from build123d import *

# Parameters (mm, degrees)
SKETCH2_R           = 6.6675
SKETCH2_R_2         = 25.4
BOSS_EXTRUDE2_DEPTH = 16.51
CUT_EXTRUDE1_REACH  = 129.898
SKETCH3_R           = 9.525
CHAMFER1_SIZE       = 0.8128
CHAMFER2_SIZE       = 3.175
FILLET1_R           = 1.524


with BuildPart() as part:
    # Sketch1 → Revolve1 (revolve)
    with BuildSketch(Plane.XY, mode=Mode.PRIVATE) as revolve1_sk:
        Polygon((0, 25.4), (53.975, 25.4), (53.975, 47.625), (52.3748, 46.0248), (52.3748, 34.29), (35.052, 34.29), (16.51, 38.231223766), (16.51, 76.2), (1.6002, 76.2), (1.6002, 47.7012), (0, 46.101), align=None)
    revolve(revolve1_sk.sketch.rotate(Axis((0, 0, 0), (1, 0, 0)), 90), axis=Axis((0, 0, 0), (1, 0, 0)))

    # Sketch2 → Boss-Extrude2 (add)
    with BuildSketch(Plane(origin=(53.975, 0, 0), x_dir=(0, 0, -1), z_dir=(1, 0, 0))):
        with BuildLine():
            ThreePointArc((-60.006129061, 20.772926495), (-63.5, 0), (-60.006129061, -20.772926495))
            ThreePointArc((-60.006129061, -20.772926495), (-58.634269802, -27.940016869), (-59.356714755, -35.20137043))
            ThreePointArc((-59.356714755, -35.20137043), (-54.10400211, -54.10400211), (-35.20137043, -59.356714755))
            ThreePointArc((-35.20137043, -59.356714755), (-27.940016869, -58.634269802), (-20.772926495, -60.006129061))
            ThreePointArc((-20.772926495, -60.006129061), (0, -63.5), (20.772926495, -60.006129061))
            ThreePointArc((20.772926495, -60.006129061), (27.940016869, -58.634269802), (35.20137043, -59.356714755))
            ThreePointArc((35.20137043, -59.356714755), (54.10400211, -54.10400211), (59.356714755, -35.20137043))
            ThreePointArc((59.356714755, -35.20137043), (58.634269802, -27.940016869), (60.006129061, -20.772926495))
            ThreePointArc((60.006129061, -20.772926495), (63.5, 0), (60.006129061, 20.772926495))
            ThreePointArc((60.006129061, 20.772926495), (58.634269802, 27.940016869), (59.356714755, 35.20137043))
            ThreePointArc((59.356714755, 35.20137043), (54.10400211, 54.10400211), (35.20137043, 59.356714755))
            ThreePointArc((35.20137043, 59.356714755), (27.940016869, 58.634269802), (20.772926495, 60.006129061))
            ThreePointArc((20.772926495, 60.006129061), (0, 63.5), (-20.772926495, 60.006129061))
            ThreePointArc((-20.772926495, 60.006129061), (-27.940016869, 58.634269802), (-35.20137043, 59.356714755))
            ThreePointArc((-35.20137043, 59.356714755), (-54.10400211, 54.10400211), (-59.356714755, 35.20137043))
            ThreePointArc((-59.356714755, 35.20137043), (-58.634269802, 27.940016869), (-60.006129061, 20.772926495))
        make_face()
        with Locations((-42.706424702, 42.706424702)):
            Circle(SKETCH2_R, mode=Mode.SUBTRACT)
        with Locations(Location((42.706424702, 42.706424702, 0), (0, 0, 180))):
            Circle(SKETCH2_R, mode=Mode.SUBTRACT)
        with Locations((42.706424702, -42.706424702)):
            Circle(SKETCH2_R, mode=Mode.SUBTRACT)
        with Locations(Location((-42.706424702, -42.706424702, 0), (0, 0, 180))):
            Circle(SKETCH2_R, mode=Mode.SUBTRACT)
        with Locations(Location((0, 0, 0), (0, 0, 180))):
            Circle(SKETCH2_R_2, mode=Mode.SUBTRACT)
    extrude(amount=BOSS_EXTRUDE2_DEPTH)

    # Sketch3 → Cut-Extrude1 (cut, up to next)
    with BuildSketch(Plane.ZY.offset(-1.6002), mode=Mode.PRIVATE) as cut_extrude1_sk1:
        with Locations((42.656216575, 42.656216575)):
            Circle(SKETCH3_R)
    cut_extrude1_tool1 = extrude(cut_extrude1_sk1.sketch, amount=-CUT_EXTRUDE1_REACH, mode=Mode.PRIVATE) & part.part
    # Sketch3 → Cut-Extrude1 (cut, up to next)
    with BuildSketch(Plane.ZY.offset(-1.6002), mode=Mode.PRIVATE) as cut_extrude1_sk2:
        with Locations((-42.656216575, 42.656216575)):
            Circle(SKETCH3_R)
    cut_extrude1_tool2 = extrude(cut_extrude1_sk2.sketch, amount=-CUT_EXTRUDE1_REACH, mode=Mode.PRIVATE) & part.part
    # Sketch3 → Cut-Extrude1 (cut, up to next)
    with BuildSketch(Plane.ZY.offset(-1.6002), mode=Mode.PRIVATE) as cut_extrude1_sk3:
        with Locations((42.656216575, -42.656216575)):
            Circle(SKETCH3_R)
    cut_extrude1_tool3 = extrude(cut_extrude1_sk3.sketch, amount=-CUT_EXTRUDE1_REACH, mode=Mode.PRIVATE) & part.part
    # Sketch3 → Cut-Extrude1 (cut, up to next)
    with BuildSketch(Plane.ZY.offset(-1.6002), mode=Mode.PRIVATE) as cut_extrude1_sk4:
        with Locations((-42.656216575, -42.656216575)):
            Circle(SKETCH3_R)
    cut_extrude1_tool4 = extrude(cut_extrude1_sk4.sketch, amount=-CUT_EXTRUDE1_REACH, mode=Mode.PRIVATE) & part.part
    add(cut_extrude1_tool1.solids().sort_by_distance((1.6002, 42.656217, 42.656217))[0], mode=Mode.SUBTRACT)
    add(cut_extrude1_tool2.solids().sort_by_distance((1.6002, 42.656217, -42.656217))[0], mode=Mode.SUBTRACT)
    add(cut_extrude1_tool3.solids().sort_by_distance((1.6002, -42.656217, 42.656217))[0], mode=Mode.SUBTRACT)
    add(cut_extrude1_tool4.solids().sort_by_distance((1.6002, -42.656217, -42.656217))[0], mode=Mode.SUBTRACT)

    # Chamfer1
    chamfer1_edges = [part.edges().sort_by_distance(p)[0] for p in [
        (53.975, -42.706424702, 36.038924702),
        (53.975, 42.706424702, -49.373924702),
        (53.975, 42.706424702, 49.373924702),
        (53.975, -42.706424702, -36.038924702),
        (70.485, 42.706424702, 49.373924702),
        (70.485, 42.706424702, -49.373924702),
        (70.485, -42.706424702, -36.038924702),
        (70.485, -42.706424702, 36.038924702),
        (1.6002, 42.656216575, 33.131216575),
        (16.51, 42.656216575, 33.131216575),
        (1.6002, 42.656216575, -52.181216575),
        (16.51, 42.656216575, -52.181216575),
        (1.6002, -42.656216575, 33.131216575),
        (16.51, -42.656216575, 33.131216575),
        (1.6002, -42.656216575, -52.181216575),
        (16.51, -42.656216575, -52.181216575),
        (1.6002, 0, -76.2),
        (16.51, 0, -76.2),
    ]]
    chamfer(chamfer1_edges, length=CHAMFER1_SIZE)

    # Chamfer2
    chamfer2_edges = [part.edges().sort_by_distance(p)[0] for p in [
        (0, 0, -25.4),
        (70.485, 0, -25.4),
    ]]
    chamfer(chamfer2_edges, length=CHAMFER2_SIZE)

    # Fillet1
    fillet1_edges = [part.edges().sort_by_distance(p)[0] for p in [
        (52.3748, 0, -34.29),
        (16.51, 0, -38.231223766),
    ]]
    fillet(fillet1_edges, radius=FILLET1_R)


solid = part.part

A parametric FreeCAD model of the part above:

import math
import FreeCAD as App
import Part
import Sketcher
Q = App.Units.Quantity


def edges_at(feature, points):
    """Names of the edges that pass closest to the given points."""
    edges = feature.Shape.Edges
    near = lambda p: min(range(len(edges)), key=lambda i: edges[i].distToShape(Part.Vertex(*p))[0])
    return sorted({f"Edge{near(p) + 1}" for p in points})


def add_polygon(sketch, points):
    """Adds a closed chain of lines whose ends are joined by coincident constraints."""
    first, n = sketch.GeometryCount, len(points)
    for a, b in zip(points, points[1:] + points[:1]):
        sketch.addGeometry(Part.LineSegment(App.Vector(*a, 0), App.Vector(*b, 0)), False)
    for i in range(n):
        sketch.addConstraint(Sketcher.Constraint("Coincident", first + i, 2, first + (i + 1) % n, 1))

doc = App.newDocument("Part")
body = doc.addObject("PartDesign::Body", "Body")

# Sketch on XY plane
sketch1 = body.newObject("Sketcher::SketchObject", "Sketch")
sketch1.AttachmentSupport = (doc.getObject("XY_Plane"), [""])
sketch1.MapMode = "FlatFace"
add_polygon(sketch1, [(0, 25.4), (54, 25.4), (54, 47.6), (52.4, 46), (52.4, 34.3), (35.1, 34.3), (16.5, 38.2), (16.5, 76.2), (1.6, 76.2), (1.6, 47.7), (0, 46.1)])  # lines 0-10
sketch1.addConstraint([
    Sketcher.Constraint("Horizontal", 0),
    Sketcher.Constraint("Vertical", 1),
    Sketcher.Constraint("Vertical", 3),
    Sketcher.Constraint("Horizontal", 4),
    Sketcher.Constraint("Vertical", 6),
    Sketcher.Constraint("Horizontal", 7),
    Sketcher.Constraint("Vertical", 8),
    Sketcher.Constraint("Vertical", 10),
    Sketcher.Constraint("PointOnObject", 9, 2, -2),
    Sketcher.Constraint("Parallel", 2, 9),
    Sketcher.Constraint("Equal", 2, 9),
    Sketcher.Constraint("DistanceY", -1, 1, 0, 2, Q("1 in")),
    Sketcher.Constraint("DistanceY", -1, 1, 6, 2, Q("3 in")),
    Sketcher.Constraint("Angle", 2, Q("-135 deg")),
    Sketcher.Constraint("Angle", 5, Q("168 deg")),
    Sketcher.Constraint("DistanceX", 0, 1, 0, 2, Q("2.125 in")),
    Sketcher.Constraint("DistanceX", 4, 2, 4, 1, Q("0.682 in")),
    Sketcher.Constraint("DistanceX", 7, 2, 7, 1, Q("0.587 in")),
    Sketcher.Constraint("DistanceY", 1, 1, 1, 2, Q("0.875 in")),
    Sketcher.Constraint("DistanceY", 3, 2, 3, 1, Q("0.462 in")),
    Sketcher.Constraint("DistanceY", 8, 2, 8, 1, Q("1.122 in")),
    Sketcher.Constraint("DistanceY", 10, 2, 10, 1, Q("0.815 in")),
])
revolution = body.newObject("PartDesign::Revolution", "Revolution")
revolution.Profile = sketch1
revolution.ReferenceAxis = (sketch1, ["H_Axis"])
revolution.Angle = 360

# Sketch on YZ plane
sketch2 = body.newObject("Sketcher::SketchObject", "Sketch001")
sketch2.AttachmentSupport = (doc.getObject("YZ_Plane"), [""])
sketch2.MapMode = "FlatFace"
sketch2.AttachmentOffset = App.Placement(App.Vector(0, 0, 2.125 * 25.4), App.Rotation())
sketch2.addGeometry([
    Part.ArcOfCircle(Part.Circle(App.Vector(0, 0, 0), App.Vector(0, 0, 1), 64), math.radians(71), math.radians(109)),  # 0
    Part.ArcOfCircle(Part.Circle(App.Vector(-29, 84, 0), App.Vector(0, 0, 1), 25), math.radians(-104), math.radians(-71)),  # 1
    Part.ArcOfCircle(Part.Circle(App.Vector(-40, 40, 0), App.Vector(0, 0, 1), 20), math.radians(76), math.radians(194)),  # 2
    Part.ArcOfCircle(Part.Circle(App.Vector(-84, 29, 0), App.Vector(0, 0, 1), 25), math.radians(-19), math.radians(14)),  # 3
    Part.ArcOfCircle(Part.Circle(App.Vector(0, 0, 0), App.Vector(0, 0, 1), 64), math.radians(161), math.radians(199)),  # 4
    Part.ArcOfCircle(Part.Circle(App.Vector(-84, -29, 0), App.Vector(0, 0, 1), 25), math.radians(-14), math.radians(19)),  # 5
    Part.ArcOfCircle(Part.Circle(App.Vector(-40, -40, 0), App.Vector(0, 0, 1), 20), math.radians(166), math.radians(284)),  # 6
    Part.ArcOfCircle(Part.Circle(App.Vector(-29, -84, 0), App.Vector(0, 0, 1), 25), math.radians(71), math.radians(104)),  # 7
    Part.ArcOfCircle(Part.Circle(App.Vector(0, 0, 0), App.Vector(0, 0, 1), 64), math.radians(-109), math.radians(-71)),  # 8
    Part.ArcOfCircle(Part.Circle(App.Vector(29, -84, 0), App.Vector(0, 0, 1), 25), math.radians(76), math.radians(109)),  # 9
    Part.ArcOfCircle(Part.Circle(App.Vector(40, -40, 0), App.Vector(0, 0, 1), 20), math.radians(-104), math.radians(14)),  # 10
    Part.ArcOfCircle(Part.Circle(App.Vector(84, -29, 0), App.Vector(0, 0, 1), 25), math.radians(161), math.radians(194)),  # 11
    Part.ArcOfCircle(Part.Circle(App.Vector(0, 0, 0), App.Vector(0, 0, 1), 64), math.radians(-19), math.radians(19)),  # 12
    Part.ArcOfCircle(Part.Circle(App.Vector(84, 29, 0), App.Vector(0, 0, 1), 25), math.radians(166), math.radians(199)),  # 13
    Part.ArcOfCircle(Part.Circle(App.Vector(40, 40, 0), App.Vector(0, 0, 1), 20), math.radians(-14), math.radians(104)),  # 14
    Part.ArcOfCircle(Part.Circle(App.Vector(29, 84, 0), App.Vector(0, 0, 1), 25), math.radians(-109), math.radians(-76)),  # 15
    Part.Circle(App.Vector(-43, 43, 0), App.Vector(0, 0, 1), 7),  # 16
    Part.Circle(App.Vector(0, 0, 0), App.Vector(0, 0, 1), 25),  # 17
    Part.Circle(App.Vector(-43, -43, 0), App.Vector(0, 0, 1), 7),  # 18
    Part.Circle(App.Vector(43, 43, 0), App.Vector(0, 0, 1), 7),  # 19
    Part.Circle(App.Vector(43, -43, 0), App.Vector(0, 0, 1), 7),  # 20
], False)
sketch2.addConstraint([
    Sketcher.Constraint("Tangent", 0, 2, 1, 2),
    Sketcher.Constraint("Tangent", 1, 1, 2, 1),
    Sketcher.Constraint("Tangent", 2, 2, 3, 2),
    Sketcher.Constraint("Tangent", 3, 1, 4, 1),
    Sketcher.Constraint("Tangent", 4, 2, 5, 2),
    Sketcher.Constraint("Tangent", 5, 1, 6, 1),
    Sketcher.Constraint("Tangent", 6, 2, 7, 2),
    Sketcher.Constraint("Tangent", 7, 1, 8, 1),
    Sketcher.Constraint("Tangent", 8, 2, 9, 2),
    Sketcher.Constraint("Tangent", 9, 1, 10, 1),
    Sketcher.Constraint("Tangent", 10, 2, 11, 2),
    Sketcher.Constraint("Tangent", 11, 1, 12, 1),
    Sketcher.Constraint("Tangent", 12, 2, 13, 2),
    Sketcher.Constraint("Tangent", 13, 1, 14, 1),
    Sketcher.Constraint("Tangent", 14, 2, 15, 2),
    Sketcher.Constraint("Tangent", 15, 1, 0, 1),
    Sketcher.Constraint("Coincident", 0, 3, -1, 1),
    Sketcher.Constraint("Coincident", 4, 3, -1, 1),
    Sketcher.Constraint("Coincident", 8, 3, -1, 1),
    Sketcher.Constraint("Coincident", 12, 3, -1, 1),
    Sketcher.Constraint("Coincident", 17, 3, -1, 1),
    Sketcher.Constraint("Equal", 1, 3),
    Sketcher.Constraint("Equal", 0, 4),
    Sketcher.Constraint("Equal", 3, 5),
    Sketcher.Constraint("Equal", 2, 6),
    Sketcher.Constraint("Equal", 5, 7),
    Sketcher.Constraint("Equal", 4, 8),
    Sketcher.Constraint("Equal", 7, 9),
    Sketcher.Constraint("Equal", 6, 10),
    Sketcher.Constraint("Equal", 9, 11),
    Sketcher.Constraint("Equal", 8, 12),
    Sketcher.Constraint("Equal", 11, 13),
    Sketcher.Constraint("Equal", 10, 14),
    Sketcher.Constraint("Equal", 13, 15),
    Sketcher.Constraint("Equal", 15, 17),
    Sketcher.Constraint("Equal", 16, 18),
    Sketcher.Constraint("Equal", 18, 19),
    Sketcher.Constraint("Equal", 19, 20),
    Sketcher.Constraint("Symmetric", 2, 3, 10, 3, -1, 1),
    Sketcher.Constraint("Symmetric", 6, 3, 14, 3, -1, 1),
    Sketcher.Constraint("Symmetric", 18, 3, 19, 3, -1, 1),
    Sketcher.Constraint("Symmetric", 16, 3, 20, 3, -1, 1),
    Sketcher.Constraint("Symmetric", 6, 3, 10, 3, -2),
    Sketcher.Constraint("Symmetric", 16, 3, 19, 3, -2),
    Sketcher.Constraint("Diameter", 17, Q("2 in")),
    Sketcher.Constraint("Radius", 0, Q("2.5 in")),
    Sketcher.Constraint("Diameter", 16, Q("0.525 in")),
    Sketcher.Constraint("Radius", 2, Q("0.785 in")),
    Sketcher.Constraint("DistanceY", 6, 3, 2, 3, Q("3.15 in")),
    Sketcher.Constraint("DistanceX", 6, 3, 10, 3, Q("3.15 in")),
    Sketcher.Constraint("DistanceX", 16, 3, 0, 2, 21.933498),
    Sketcher.Constraint("DistanceY", 3, 1, 16, 3, 21.933498),
])
pad1 = body.newObject("PartDesign::Pad", "Pad")
pad1.Profile = sketch2
pad1.Length = Q("0.65 in")

# Sketch on YZ plane
sketch3 = body.newObject("Sketcher::SketchObject", "Sketch002")
sketch3.AttachmentSupport = (doc.getObject("YZ_Plane"), [""])
sketch3.MapMode = "FlatFace"
sketch3.AttachmentOffset = App.Placement(App.Vector(0, 0, 0.063 * 25.4), App.Rotation())
sketch3.addGeometry(Part.Circle(App.Vector(43, 43, 0), App.Vector(0, 0, 1), 10), False)
sketch3.addConstraint([
    Sketcher.Constraint("Diameter", 0, Q("0.75 in")),
    Sketcher.Constraint("DistanceX", -1, 1, 0, 3, 42.656217),
    Sketcher.Constraint("DistanceY", -1, 1, 0, 3, 42.656217),
])
pocket1 = body.newObject("PartDesign::Pocket", "Pocket")
pocket1.Profile = sketch3
pocket1.Type = "UpToFirst"
pocket1.Reversed = True

# Sketch on YZ plane
sketch4 = body.newObject("Sketcher::SketchObject", "Sketch003")
sketch4.AttachmentSupport = (doc.getObject("YZ_Plane"), [""])
sketch4.MapMode = "FlatFace"
sketch4.AttachmentOffset = App.Placement(App.Vector(0, 0, 0.063 * 25.4), App.Rotation())
sketch4.addGeometry(Part.Circle(App.Vector(43, -43, 0), App.Vector(0, 0, 1), 10), False)
sketch4.addConstraint([
    Sketcher.Constraint("Diameter", 0, Q("0.75 in")),
    Sketcher.Constraint("DistanceX", -1, 1, 0, 3, 42.656217),
    Sketcher.Constraint("DistanceY", 0, 3, -1, 1, 42.656217),
])
pocket2 = body.newObject("PartDesign::Pocket", "Pocket001")
pocket2.Profile = sketch4
pocket2.Type = "UpToFirst"
pocket2.Reversed = True

# Sketch on YZ plane
sketch5 = body.newObject("Sketcher::SketchObject", "Sketch004")
sketch5.AttachmentSupport = (doc.getObject("YZ_Plane"), [""])
sketch5.MapMode = "FlatFace"
sketch5.AttachmentOffset = App.Placement(App.Vector(0, 0, 0.063 * 25.4), App.Rotation())
sketch5.addGeometry(Part.Circle(App.Vector(-43, 43, 0), App.Vector(0, 0, 1), 10), False)
sketch5.addConstraint([
    Sketcher.Constraint("Diameter", 0, Q("0.75 in")),
    Sketcher.Constraint("DistanceX", 0, 3, -1, 1, 42.656217),
    Sketcher.Constraint("DistanceY", -1, 1, 0, 3, 42.656217),
])
pocket3 = body.newObject("PartDesign::Pocket", "Pocket002")
pocket3.Profile = sketch5
pocket3.Type = "UpToFirst"
pocket3.Reversed = True

# Sketch on YZ plane
sketch6 = body.newObject("Sketcher::SketchObject", "Sketch005")
sketch6.AttachmentSupport = (doc.getObject("YZ_Plane"), [""])
sketch6.MapMode = "FlatFace"
sketch6.AttachmentOffset = App.Placement(App.Vector(0, 0, 0.063 * 25.4), App.Rotation())
sketch6.addGeometry(Part.Circle(App.Vector(-43, -43, 0), App.Vector(0, 0, 1), 10), False)
sketch6.addConstraint([
    Sketcher.Constraint("Diameter", 0, Q("0.75 in")),
    Sketcher.Constraint("DistanceX", 0, 3, -1, 1, 42.656217),
    Sketcher.Constraint("DistanceY", 0, 3, -1, 1, 42.656217),
])
pocket4 = body.newObject("PartDesign::Pocket", "Pocket003")
pocket4.Profile = sketch6
pocket4.Type = "UpToFirst"
pocket4.Reversed = True
doc.recompute()

chamfer = body.newObject("PartDesign::Chamfer", "Chamfer")
chamfer.Base = (pocket4, edges_at(pocket4, [
    (53.975, -42.706, 36.039),
    (53.975, 42.706, -49.374),
    (53.975, 42.706, 49.374),
    (53.975, -42.706, -36.039),
    (70.485, 42.706, 49.374),
    (70.485, 42.706, -49.374),
    (70.485, -42.706, -36.039),
    (70.485, -42.706, 36.039),
    (1.6, 42.656, 33.131),
    (16.51, 42.656, 33.131),
    (1.6, 42.656, -52.181),
    (16.51, 42.656, -52.181),
    (1.6, -42.656, 33.131),
    (16.51, -42.656, 33.131),
    (1.6, -42.656, -52.181),
    (16.51, -42.656, -52.181),
    (1.6, 0, -76.2),
    (16.51, 0, -76.2),
]))
chamfer.Size = Q("0.032 in")
doc.recompute()

chamfer2 = body.newObject("PartDesign::Chamfer", "Chamfer001")
chamfer2.Base = (chamfer, edges_at(chamfer, [(0, 0, -25.4), (70.485, 0, -25.4)]))
chamfer2.Size = Q("0.125 in")
doc.recompute()

fillet = body.newObject("PartDesign::Fillet", "Fillet")
fillet.Base = (chamfer2, edges_at(chamfer2, [(52.375, 0, -34.29), (16.51, 0, -38.231)]))
fillet.Radius = Q("0.06 in")

doc.recompute()
